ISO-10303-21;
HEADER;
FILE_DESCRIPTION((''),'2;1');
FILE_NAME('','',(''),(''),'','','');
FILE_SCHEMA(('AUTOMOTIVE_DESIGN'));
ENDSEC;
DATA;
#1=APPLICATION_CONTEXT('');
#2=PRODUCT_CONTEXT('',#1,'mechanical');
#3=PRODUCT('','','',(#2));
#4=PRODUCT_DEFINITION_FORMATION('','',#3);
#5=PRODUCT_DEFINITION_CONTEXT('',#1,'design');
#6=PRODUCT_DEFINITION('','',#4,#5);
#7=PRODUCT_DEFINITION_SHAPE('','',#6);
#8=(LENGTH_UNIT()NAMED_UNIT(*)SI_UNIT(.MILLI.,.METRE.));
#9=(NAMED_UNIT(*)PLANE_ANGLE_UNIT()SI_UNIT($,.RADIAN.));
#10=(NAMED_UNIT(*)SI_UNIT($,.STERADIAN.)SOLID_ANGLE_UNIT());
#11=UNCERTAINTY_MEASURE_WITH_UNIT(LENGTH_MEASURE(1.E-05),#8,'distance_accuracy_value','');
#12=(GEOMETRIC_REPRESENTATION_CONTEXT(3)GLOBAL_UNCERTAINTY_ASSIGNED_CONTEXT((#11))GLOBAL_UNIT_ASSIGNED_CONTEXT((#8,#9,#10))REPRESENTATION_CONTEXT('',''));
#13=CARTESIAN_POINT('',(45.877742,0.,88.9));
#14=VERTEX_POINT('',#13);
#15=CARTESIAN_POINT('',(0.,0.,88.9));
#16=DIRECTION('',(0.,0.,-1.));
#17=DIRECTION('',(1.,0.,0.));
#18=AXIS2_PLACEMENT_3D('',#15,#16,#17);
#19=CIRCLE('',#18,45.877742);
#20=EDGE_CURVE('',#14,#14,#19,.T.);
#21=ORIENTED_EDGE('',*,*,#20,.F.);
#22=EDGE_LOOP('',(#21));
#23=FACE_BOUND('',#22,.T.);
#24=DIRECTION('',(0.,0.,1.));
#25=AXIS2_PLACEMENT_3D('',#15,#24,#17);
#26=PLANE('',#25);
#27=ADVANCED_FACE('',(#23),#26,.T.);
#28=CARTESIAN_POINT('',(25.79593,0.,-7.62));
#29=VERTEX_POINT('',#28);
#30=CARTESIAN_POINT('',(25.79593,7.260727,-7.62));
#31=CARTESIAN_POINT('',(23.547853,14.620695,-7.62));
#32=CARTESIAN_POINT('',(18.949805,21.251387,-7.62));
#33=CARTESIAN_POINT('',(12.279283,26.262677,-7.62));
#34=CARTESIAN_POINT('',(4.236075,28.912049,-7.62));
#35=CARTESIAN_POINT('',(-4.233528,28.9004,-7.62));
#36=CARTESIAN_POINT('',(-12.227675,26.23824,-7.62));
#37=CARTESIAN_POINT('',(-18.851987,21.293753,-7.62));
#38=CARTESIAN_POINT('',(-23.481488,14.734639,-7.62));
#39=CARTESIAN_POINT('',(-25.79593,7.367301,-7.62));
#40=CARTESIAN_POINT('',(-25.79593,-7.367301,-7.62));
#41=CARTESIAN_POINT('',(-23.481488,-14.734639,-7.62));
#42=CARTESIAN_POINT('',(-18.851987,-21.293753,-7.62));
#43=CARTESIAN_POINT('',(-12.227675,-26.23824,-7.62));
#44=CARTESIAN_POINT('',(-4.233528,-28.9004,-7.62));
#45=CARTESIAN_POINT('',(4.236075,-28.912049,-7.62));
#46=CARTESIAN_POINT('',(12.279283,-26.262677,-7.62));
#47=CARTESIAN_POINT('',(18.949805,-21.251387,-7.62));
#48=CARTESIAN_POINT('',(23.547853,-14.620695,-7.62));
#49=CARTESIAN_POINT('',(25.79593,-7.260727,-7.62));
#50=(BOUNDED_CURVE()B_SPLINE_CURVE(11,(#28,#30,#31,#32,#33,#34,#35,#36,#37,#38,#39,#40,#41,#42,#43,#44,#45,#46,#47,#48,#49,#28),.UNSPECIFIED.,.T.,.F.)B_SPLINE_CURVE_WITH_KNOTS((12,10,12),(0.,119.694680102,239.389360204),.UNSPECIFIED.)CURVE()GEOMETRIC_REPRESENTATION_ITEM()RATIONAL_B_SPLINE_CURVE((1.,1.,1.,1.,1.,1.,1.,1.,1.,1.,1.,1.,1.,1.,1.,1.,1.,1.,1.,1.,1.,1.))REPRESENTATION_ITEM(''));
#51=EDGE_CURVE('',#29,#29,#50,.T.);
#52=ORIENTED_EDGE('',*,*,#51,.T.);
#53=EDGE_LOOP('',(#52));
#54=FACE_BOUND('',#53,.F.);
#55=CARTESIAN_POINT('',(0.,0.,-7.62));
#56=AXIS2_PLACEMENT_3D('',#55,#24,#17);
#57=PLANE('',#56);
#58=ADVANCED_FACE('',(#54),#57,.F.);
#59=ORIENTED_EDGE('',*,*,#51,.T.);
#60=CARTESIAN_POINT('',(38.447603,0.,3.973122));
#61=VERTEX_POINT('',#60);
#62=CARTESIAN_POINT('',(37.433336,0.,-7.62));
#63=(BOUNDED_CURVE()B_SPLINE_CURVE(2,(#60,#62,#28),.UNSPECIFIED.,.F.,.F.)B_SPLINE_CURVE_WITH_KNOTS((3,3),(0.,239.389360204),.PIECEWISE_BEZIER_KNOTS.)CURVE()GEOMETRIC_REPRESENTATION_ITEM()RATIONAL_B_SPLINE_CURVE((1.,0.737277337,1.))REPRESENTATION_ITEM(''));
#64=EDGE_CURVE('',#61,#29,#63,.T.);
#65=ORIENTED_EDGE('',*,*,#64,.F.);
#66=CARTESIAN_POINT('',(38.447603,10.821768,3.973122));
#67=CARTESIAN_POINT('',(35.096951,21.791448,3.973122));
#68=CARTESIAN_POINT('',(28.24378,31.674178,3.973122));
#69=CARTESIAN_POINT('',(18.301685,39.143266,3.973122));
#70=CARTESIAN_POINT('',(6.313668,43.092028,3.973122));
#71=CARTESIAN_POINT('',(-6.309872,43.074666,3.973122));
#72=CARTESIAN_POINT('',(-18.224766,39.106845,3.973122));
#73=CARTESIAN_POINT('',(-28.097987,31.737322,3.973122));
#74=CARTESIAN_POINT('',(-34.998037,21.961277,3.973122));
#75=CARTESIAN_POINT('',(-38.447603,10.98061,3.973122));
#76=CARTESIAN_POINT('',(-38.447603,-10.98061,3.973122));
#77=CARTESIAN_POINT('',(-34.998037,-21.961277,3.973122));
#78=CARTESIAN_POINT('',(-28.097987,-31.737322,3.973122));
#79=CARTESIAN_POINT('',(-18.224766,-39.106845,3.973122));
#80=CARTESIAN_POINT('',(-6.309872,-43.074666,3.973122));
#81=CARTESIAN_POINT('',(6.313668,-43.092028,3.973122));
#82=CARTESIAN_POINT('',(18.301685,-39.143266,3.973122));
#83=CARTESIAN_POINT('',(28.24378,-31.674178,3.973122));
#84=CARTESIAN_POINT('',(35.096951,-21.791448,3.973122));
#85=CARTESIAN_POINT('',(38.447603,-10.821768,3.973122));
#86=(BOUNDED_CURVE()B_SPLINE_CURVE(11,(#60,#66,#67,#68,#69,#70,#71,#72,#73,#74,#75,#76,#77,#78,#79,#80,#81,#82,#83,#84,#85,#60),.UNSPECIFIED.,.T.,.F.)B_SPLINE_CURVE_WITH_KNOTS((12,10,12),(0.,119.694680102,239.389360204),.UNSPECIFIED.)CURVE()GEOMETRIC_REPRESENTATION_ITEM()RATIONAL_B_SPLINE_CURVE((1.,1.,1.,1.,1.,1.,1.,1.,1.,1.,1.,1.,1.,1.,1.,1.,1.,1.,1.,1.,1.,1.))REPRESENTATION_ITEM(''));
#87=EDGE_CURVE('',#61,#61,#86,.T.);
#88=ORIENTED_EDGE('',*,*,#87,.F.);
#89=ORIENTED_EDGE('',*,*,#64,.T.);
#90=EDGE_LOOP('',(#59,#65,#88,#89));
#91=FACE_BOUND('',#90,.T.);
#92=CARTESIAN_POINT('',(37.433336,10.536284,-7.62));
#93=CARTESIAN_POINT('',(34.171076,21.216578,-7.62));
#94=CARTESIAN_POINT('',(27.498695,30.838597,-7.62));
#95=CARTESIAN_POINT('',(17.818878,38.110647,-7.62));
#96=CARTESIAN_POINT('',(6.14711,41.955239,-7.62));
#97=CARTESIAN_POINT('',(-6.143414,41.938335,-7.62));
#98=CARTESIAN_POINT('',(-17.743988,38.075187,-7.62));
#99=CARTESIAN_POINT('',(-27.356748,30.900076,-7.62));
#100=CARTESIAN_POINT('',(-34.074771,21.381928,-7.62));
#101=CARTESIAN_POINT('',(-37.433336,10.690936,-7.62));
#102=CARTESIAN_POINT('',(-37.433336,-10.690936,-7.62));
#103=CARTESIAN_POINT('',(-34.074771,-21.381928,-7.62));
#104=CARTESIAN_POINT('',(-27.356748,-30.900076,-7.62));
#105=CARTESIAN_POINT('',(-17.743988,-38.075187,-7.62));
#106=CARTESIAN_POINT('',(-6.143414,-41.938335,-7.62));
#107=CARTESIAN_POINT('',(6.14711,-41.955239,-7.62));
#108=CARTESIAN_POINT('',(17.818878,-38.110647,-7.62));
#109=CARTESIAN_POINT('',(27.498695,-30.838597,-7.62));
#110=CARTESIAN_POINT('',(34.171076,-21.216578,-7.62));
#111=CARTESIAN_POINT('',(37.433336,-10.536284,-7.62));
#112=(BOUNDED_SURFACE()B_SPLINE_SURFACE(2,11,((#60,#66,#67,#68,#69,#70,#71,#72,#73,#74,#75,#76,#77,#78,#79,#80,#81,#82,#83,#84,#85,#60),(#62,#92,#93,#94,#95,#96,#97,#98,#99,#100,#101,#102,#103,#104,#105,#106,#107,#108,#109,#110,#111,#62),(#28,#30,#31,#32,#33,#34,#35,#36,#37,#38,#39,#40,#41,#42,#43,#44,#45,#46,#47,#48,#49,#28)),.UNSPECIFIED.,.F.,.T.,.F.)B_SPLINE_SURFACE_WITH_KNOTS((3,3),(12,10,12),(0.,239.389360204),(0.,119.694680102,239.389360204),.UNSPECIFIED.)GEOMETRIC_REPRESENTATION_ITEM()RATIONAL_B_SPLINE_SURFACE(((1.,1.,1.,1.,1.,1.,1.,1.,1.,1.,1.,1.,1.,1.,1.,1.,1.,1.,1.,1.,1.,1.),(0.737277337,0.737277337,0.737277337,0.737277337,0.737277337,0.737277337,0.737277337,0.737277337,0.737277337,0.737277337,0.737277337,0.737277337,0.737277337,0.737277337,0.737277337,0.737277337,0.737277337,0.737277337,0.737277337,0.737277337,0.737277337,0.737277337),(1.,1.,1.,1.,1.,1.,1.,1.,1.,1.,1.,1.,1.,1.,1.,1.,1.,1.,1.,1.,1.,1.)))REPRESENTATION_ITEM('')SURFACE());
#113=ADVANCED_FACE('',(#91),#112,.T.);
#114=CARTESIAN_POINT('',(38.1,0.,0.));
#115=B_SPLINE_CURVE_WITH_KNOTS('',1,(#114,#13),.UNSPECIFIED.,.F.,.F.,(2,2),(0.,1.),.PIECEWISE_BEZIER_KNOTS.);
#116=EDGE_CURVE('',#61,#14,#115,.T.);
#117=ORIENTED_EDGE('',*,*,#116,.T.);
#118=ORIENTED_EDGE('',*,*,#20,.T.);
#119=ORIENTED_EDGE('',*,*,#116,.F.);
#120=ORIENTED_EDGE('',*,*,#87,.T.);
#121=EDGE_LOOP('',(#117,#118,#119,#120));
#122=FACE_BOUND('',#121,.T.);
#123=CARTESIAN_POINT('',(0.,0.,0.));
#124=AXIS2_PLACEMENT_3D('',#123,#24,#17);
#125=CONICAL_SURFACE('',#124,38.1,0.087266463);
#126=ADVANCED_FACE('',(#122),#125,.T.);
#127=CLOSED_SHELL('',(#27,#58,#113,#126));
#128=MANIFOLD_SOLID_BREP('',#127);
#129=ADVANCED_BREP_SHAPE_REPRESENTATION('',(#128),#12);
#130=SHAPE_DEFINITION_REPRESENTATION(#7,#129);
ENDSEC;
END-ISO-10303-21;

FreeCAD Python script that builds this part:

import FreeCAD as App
import Part
import Sketcher
Q = App.Units.Quantity


def edges_at(feature, points):
    """Names of the edges that pass closest to the given points."""
    edges = feature.Shape.Edges
    near = lambda p: min(range(len(edges)), key=lambda i: edges[i].distToShape(Part.Vertex(*p))[0])
    return sorted({f"Edge{near(p) + 1}" for p in points})

doc = App.newDocument("Part")
body = doc.addObject("PartDesign::Body", "Body")

sketch1 = doc.addObject("Sketcher::SketchObject", "Sketch")
body.addObject(sketch1)
sketch1.AttachmentSupport = (doc.XY_Plane, [""])
sketch1.MapMode = "FlatFace"
sketch1.addGeometry(Part.Circle(App.Vector(0, 0, 0), App.Vector(0, 0, 1), 38.1), False)
sketch1.addConstraint([
    Sketcher.Constraint("Coincident", 0, 3, -1, 1),
    Sketcher.Constraint("Diameter", 0, Q("3 in")),
])
pad1 = doc.addObject("PartDesign::Pad", "Pad")
body.addObject(pad1)
pad1.Profile = sketch1
pad1.Length = Q("3.5 in")
pad1.TaperAngle = 5
pad2 = doc.addObject("PartDesign::Pad", "Pad001")
body.addObject(pad2)
pad2.Profile = sketch1
pad2.Length = Q("0.3 in")
pad2.Reversed = True
doc.recompute()

fillet = doc.addObject("PartDesign::Fillet", "Fillet")
body.addObject(fillet)
fillet.Base = (pad2, edges_at(pad2, [(-38.1, 0, -7.62)]))
fillet.Radius = Q("0.5 in")

doc.recompute()
